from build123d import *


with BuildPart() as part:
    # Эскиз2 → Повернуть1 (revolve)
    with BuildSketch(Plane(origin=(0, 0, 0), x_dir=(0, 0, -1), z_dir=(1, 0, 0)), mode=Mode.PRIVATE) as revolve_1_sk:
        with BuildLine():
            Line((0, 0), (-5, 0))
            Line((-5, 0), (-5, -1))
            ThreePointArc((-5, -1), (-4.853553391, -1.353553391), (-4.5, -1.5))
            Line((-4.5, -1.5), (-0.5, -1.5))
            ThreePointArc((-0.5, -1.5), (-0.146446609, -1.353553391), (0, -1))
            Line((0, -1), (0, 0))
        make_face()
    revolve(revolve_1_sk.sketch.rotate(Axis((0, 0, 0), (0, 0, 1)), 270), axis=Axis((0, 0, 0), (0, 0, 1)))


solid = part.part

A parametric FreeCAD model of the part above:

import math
import FreeCAD as App
import Part
import Sketcher
from FreeCAD import Vector
Q = App.Units.Quantity

doc = App.newDocument("Part")
params = doc.addObject("Spreadsheet::Sheet", "Params")
for row, (alias, value) in enumerate([
    ("sketch1_radius", "0.5 mm"),
    ("sketch1_width", "1 mm"),
    ("sketch1_height", "5 mm"),
    ("revolution_angle", "360 deg"),
], start=1):
    params.set(f"A{row}", alias)
    params.set(f"B{row}", "=" + value)
    params.setAlias(f"B{row}", alias)

body = doc.addObject("PartDesign::Body", "Body")

# Sketch on YZ plane
sketch1 = body.newObject("Sketcher::SketchObject", "Sketch")
sketch1.AttachmentSupport = (doc.getObject("YZ_Plane"), [""])
sketch1.MapMode = "FlatFace"
sketch1.addGeometry(Part.LineSegment(Vector(0, 0, 0), Vector(0, 5, 0)), False)
sketch1.addGeometry(Part.LineSegment(Vector(0, 5, 0), Vector(-1, 5, 0)), False)
sketch1.addGeometry(Part.ArcOfCircle(Part.Circle(Vector(-1, 4.5, 0), Vector(0, 0, 1), 0.5), math.radians(90), math.radians(180)), False)
sketch1.addGeometry(Part.LineSegment(Vector(-1.5, 4.5, 0), Vector(-1.5, 0.5, 0)), False)
sketch1.addGeometry(Part.ArcOfCircle(Part.Circle(Vector(-1, 0.5, 0), Vector(0, 0, 1), 0.5), math.radians(180), math.radians(270)), False)
sketch1.addGeometry(Part.LineSegment(Vector(-1, 0, 0), Vector(0, 0, 0)), False)
sketch1.addConstraint(Sketcher.Constraint("Coincident", 0, 2, 1, 1))
sketch1.addConstraint(Sketcher.Constraint("Tangent", 1, 2, 2, 1))
sketch1.addConstraint(Sketcher.Constraint("Tangent", 2, 2, 3, 1))
sketch1.addConstraint(Sketcher.Constraint("Tangent", 3, 2, 4, 1))
sketch1.addConstraint(Sketcher.Constraint("Tangent", 4, 2, 5, 1))
sketch1.addConstraint(Sketcher.Constraint("Coincident", 5, 2, 0, 1))
sketch1.addConstraint(Sketcher.Constraint("Vertical", 0))
sketch1.addConstraint(Sketcher.Constraint("Horizontal", 1))
sketch1.addConstraint(Sketcher.Constraint("Vertical", 3))
sketch1.addConstraint(Sketcher.Constraint("Horizontal", 5))
sketch1.addConstraint(Sketcher.Constraint("Coincident", 5, 2, -1, 1))
sketch1.addConstraint(Sketcher.Constraint("Equal", 2, 4))
sketch1.addConstraint(Sketcher.Constraint("Radius", 2, Q("0.5 mm")))
sketch1.addConstraint(Sketcher.Constraint("DistanceX", 1, 2, 1, 1, Q("1 mm")))
sketch1.addConstraint(Sketcher.Constraint("DistanceY", 0, 1, 0, 2, Q("5 mm")))
sketch1.setExpression("Constraints[12]", "Params.sketch1_radius")
sketch1.setExpression("Constraints[13]", "Params.sketch1_width")
sketch1.setExpression("Constraints[14]", "Params.sketch1_height")
revolution = body.newObject("PartDesign::Revolution", "Revolution")
revolution.Profile = sketch1
revolution.ReferenceAxis = (sketch1, ["V_Axis"])
revolution.setExpression("Angle", "Params.revolution_angle")

doc.recompute()
